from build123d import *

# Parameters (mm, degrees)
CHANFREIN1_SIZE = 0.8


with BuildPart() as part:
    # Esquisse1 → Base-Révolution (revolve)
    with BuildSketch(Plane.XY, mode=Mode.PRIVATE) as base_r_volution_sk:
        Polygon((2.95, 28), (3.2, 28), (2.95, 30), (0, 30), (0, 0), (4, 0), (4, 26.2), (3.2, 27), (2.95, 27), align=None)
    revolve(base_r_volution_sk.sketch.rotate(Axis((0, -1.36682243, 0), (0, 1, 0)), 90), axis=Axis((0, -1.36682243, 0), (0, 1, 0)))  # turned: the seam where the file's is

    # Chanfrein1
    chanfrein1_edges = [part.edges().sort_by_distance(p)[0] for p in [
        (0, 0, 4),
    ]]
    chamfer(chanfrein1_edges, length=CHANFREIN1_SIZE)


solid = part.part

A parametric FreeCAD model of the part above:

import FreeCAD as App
import Part
import Sketcher

V = App.Vector
Q = App.Units.Quantity


def edges_at(feature, points):
    """Names of the edges that pass closest to the given points."""
    edges = feature.Shape.Edges
    near = lambda p: min(range(len(edges)), key=lambda i: edges[i].distToShape(Part.Vertex(*p))[0])
    return sorted({f"Edge{near(p) + 1}" for p in points})


def add_polygon(sketch, points):
    """Adds a closed chain of lines whose ends are joined by coincident constraints."""
    first, n = sketch.GeometryCount, len(points)
    for a, b in zip(points, points[1:] + points[:1]):
        sketch.addGeometry(Part.LineSegment(App.Vector(*a, 0), App.Vector(*b, 0)), False)
    for i in range(n):
        sketch.addConstraint(Sketcher.Constraint("Coincident", first + i, 2, first + (i + 1) % n, 1))

doc = App.newDocument("Part")
body = doc.addObject("PartDesign::Body", "Body")

# Sketch on XY plane
sketch1 = body.newObject("Sketcher::SketchObject", "Sketch")
sketch1.AttachmentSupport = (doc.getObject("XY_Plane"), [""])
sketch1.MapMode = "FlatFace"
add_polygon(sketch1, [(2.95, 28), (3.2, 28), (2.95, 30), (0, 30), (0, 0), (4, 0), (4, 26.2), (3.2, 27), (2.95, 27)])  # lines 0-8
sketch1.addConstraint(Sketcher.Constraint("Horizontal", 0))
sketch1.addConstraint(Sketcher.Constraint("Horizontal", 2))
sketch1.addConstraint(Sketcher.Constraint("Vertical", 3))
sketch1.addConstraint(Sketcher.Constraint("Horizontal", 4))
sketch1.addConstraint(Sketcher.Constraint("Vertical", 5))
sketch1.addConstraint(Sketcher.Constraint("Horizontal", 7))
sketch1.addConstraint(Sketcher.Constraint("Vertical", 8))
sketch1.addConstraint(Sketcher.Constraint("Coincident", 3, 2, -1, 1))
sketch1.addConstraint(Sketcher.Constraint("Vertical", 0, 2, 6, 2))
sketch1.addConstraint(Sketcher.Constraint("Vertical", 1, 2, 7, 2))
sketch1.addConstraint(Sketcher.Constraint("DistanceX", 4, 1, 4, 2, Q("4 mm")))
sketch1.addConstraint(Sketcher.Constraint("DistanceY", 3, 2, 3, 1, Q("30 mm")))
sketch1.addConstraint(Sketcher.Constraint("DistanceY", 8, 1, 8, 2, Q("1 mm")))
sketch1.addConstraint(Sketcher.Constraint("Angle", 6, Q("135 deg")))
sketch1.addConstraint(Sketcher.Constraint("DistanceY", 5, 1, 5, 2, Q("26.2 mm")))
sketch1.addConstraint(Sketcher.Constraint("DistanceY", -1, 1, 0, 2, Q("28 mm")))
sketch1.addConstraint(Sketcher.Constraint("DistanceX", 0, 1, 0, 2, Q("0.25 mm")))
revolution = body.newObject("PartDesign::Revolution", "Revolution")
revolution.Profile = sketch1
revolution.ReferenceAxis = (sketch1, ["V_Axis"])
revolution.Angle = 360
doc.recompute()

chamfer = body.newObject("PartDesign::Chamfer", "Chamfer")
chamfer.Base = (revolution, edges_at(revolution, [(0, 0, 4)]))
chamfer.Size = 0.8

doc.recompute()
